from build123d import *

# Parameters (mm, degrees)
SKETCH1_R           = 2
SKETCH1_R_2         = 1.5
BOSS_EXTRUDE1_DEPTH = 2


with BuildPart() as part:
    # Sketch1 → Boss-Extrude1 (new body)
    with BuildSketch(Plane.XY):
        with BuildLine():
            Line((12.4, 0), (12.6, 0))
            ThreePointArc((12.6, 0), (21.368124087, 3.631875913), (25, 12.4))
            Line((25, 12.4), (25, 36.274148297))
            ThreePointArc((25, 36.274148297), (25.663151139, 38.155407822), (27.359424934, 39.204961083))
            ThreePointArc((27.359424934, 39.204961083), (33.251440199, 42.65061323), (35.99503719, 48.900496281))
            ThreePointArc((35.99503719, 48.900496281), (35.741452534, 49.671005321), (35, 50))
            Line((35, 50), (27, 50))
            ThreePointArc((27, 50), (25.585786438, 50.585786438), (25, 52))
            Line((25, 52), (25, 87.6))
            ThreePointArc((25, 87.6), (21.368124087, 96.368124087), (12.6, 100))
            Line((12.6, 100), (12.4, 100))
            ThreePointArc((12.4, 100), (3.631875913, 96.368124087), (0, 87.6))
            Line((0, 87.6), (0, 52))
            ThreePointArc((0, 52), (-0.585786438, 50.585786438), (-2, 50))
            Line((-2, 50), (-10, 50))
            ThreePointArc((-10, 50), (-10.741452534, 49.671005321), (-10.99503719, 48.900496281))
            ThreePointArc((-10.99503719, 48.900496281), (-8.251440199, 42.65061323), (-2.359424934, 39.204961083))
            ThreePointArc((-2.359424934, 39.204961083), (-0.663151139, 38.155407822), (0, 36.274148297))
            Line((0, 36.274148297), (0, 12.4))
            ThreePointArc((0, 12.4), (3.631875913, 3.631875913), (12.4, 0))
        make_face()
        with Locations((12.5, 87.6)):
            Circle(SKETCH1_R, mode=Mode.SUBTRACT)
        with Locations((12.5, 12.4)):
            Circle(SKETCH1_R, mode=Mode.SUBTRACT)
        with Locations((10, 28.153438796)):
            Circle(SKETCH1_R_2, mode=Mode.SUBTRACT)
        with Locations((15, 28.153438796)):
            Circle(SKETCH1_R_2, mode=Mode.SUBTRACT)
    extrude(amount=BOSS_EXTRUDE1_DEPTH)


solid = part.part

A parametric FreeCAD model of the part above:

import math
import FreeCAD as App
import Part
import Sketcher

V = App.Vector
Q = App.Units.Quantity

doc = App.newDocument("Part")
body = doc.addObject("PartDesign::Body", "Body")

# Sketch on XY plane
sketch1 = doc.addObject("Sketcher::SketchObject", "Sketch")
body.addObject(sketch1)
sketch1.AttachmentSupport = (doc.XY_Plane, [""])
sketch1.MapMode = "FlatFace"
sketch1.addGeometry([
    Part.LineSegment(V(12.4, 0, 0), V(12.6, 0, 0)),  # 0
    Part.ArcOfCircle(Part.Circle(V(12.6, 12.4, 0), V(0, 0, 1), 12.4), math.radians(-90), math.radians(0)),  # 1
    Part.LineSegment(V(25, 12.4, 0), V(25, 36.27, 0)),  # 2
    Part.ArcOfCircle(Part.Circle(V(28, 36.27, 0), V(0, 0, 1), 3), math.radians(102), math.radians(180)),  # 3
    Part.ArcOfCircle(Part.Circle(V(25, 50, 0), V(0, 0, 1), 11.05), math.radians(-78), math.radians(-6)),  # 4
    Part.ArcOfCircle(Part.Circle(V(35, 49, 0), V(0, 0, 1), 1), math.radians(-6), math.radians(90)),  # 5
    Part.LineSegment(V(35, 50, 0), V(27, 50, 0)),  # 6
    Part.ArcOfCircle(Part.Circle(V(27, 52, 0), V(0, 0, 1), 2), math.radians(-180), math.radians(-90)),  # 7
    Part.LineSegment(V(25, 52, 0), V(25, 87.6, 0)),  # 8
    Part.ArcOfCircle(Part.Circle(V(12.6, 87.6, 0), V(0, 0, 1), 12.4), math.radians(0), math.radians(90)),  # 9
    Part.LineSegment(V(12.6, 100, 0), V(12.4, 100, 0)),  # 10
    Part.ArcOfCircle(Part.Circle(V(12.4, 87.6, 0), V(0, 0, 1), 12.4), math.radians(90), math.radians(180)),  # 11
    Part.LineSegment(V(0, 87.6, 0), V(0, 52, 0)),  # 12
    Part.ArcOfCircle(Part.Circle(V(-2, 52, 0), V(0, 0, 1), 2), math.radians(-90), math.radians(0)),  # 13
    Part.LineSegment(V(-2, 50, 0), V(-10, 50, 0)),  # 14
    Part.ArcOfCircle(Part.Circle(V(-10, 49, 0), V(0, 0, 1), 1), math.radians(90), math.radians(186)),  # 15
    Part.ArcOfCircle(Part.Circle(V(0, 50, 0), V(0, 0, 1), 11.05), math.radians(-174), math.radians(-102)),  # 16
    Part.ArcOfCircle(Part.Circle(V(-3, 36.27, 0), V(0, 0, 1), 3), math.radians(0), math.radians(78)),  # 17
    Part.LineSegment(V(0, 36.27, 0), V(0, 12.4, 0)),  # 18
    Part.ArcOfCircle(Part.Circle(V(12.4, 12.4, 0), V(0, 0, 1), 12.4), math.radians(180), math.radians(270)),  # 19
    Part.Circle(V(10, 28.15, 0), V(0, 0, 1), 1.5),  # 20
    Part.Circle(V(12.5, 12.4, 0), V(0, 0, 1), 2),  # 21
    Part.Circle(V(15, 28.15, 0), V(0, 0, 1), 1.5),  # 22
    Part.Circle(V(12.5, 87.6, 0), V(0, 0, 1), 2),  # 23
], False)
sketch1.addConstraint([
    Sketcher.Constraint("Tangent", 0, 2, 1, 1),
    Sketcher.Constraint("Tangent", 1, 2, 2, 1),
    Sketcher.Constraint("Tangent", 2, 2, 3, 2),
    Sketcher.Constraint("Tangent", 3, 1, 4, 1),
    Sketcher.Constraint("Tangent", 4, 2, 5, 1),
    Sketcher.Constraint("Tangent", 5, 2, 6, 1),
    Sketcher.Constraint("Tangent", 6, 2, 7, 2),
    Sketcher.Constraint("Tangent", 7, 1, 8, 1),
    Sketcher.Constraint("Tangent", 8, 2, 9, 1),
    Sketcher.Constraint("Tangent", 9, 2, 10, 1),
    Sketcher.Constraint("Tangent", 10, 2, 11, 1),
    Sketcher.Constraint("Tangent", 11, 2, 12, 1),
    Sketcher.Constraint("Tangent", 12, 2, 13, 2),
    Sketcher.Constraint("Tangent", 13, 1, 14, 1),
    Sketcher.Constraint("Tangent", 14, 2, 15, 1),
    Sketcher.Constraint("Tangent", 15, 2, 16, 1),
    Sketcher.Constraint("Tangent", 16, 2, 17, 2),
    Sketcher.Constraint("Tangent", 17, 1, 18, 1),
    Sketcher.Constraint("Tangent", 18, 2, 19, 1),
    Sketcher.Constraint("Tangent", 19, 2, 0, 1),
    Sketcher.Constraint("Horizontal", 0),
    Sketcher.Constraint("Vertical", 2),
    Sketcher.Constraint("Horizontal", 6),
    Sketcher.Constraint("Vertical", 8),
    Sketcher.Constraint("Horizontal", 10),
    Sketcher.Constraint("Vertical", 12),
    Sketcher.Constraint("Horizontal", 14),
    Sketcher.Constraint("Vertical", 18),
    Sketcher.Constraint("Equal", 1, 9),
    Sketcher.Constraint("Equal", 9, 11),
    Sketcher.Constraint("Equal", 7, 13),
    Sketcher.Constraint("Equal", 5, 15),
    Sketcher.Constraint("Equal", 4, 16),
    Sketcher.Constraint("Equal", 3, 17),
    Sketcher.Constraint("Equal", 11, 19),
    Sketcher.Constraint("Equal", 13, 21),
    Sketcher.Constraint("Equal", 20, 22),
    Sketcher.Constraint("Equal", 21, 23),
    Sketcher.Constraint("PointOnObject", 16, 3, -2),
    Sketcher.Constraint("PointOnObject", 0, 2, -1),
    Sketcher.Constraint("PointOnObject", 11, 2, -2),
    Sketcher.Constraint("PointOnObject", 17, 1, -2),
    Sketcher.Constraint("Horizontal", 7, 3, 13, 3),
    Sketcher.Constraint("Horizontal", 4, 3, 16, 3),
    Sketcher.Constraint("Horizontal", 3, 3, 17, 3),
    Sketcher.Constraint("Horizontal", 19, 3, 21, 3),
    Sketcher.Constraint("Horizontal", 20, 3, 22, 3),
    Sketcher.Constraint("Horizontal", 11, 3, 23, 3),
    Sketcher.Constraint("Horizontal", 16, 3, 5, 2),
    Sketcher.Constraint("Vertical", 1, 3, 9, 3),
    Sketcher.Constraint("Vertical", 21, 3, 23, 3),
    Sketcher.Constraint("Diameter", 20, Q("3 mm")),
    Sketcher.Constraint("Diameter", 21, Q("4 mm")),
    Sketcher.Constraint("Radius", 3, Q("3 mm")),
    Sketcher.Constraint("Radius", 5, Q("1 mm")),
    Sketcher.Constraint("Radius", 1, Q("12.4 mm")),
    Sketcher.Constraint("DistanceX", 6, 2, 6, 1, Q("8 mm")),
    Sketcher.Constraint("DistanceX", 0, 1, 0, 2, Q("0.2 mm")),
    Sketcher.Constraint("DistanceY", 8, 1, 8, 2, Q("35.6 mm")),
    Sketcher.Constraint("DistanceY", -1, 1, 4, 3, Q("50 mm")),
    Sketcher.Constraint("DistanceX", -1, 1, 20, 3, Q("10 mm")),
    Sketcher.Constraint("DistanceX", -1, 1, 22, 3, Q("15 mm")),
    Sketcher.Constraint("DistanceX", -1, 1, 21, 3, Q("12.5 mm")),
    Sketcher.Constraint("DistanceY", -1, 1, 20, 3, Q("28.153439 mm")),
])
pad1 = doc.addObject("PartDesign::Pad", "Pad")
body.addObject(pad1)
pad1.Profile = sketch1
pad1.Length = 2

doc.recompute()
